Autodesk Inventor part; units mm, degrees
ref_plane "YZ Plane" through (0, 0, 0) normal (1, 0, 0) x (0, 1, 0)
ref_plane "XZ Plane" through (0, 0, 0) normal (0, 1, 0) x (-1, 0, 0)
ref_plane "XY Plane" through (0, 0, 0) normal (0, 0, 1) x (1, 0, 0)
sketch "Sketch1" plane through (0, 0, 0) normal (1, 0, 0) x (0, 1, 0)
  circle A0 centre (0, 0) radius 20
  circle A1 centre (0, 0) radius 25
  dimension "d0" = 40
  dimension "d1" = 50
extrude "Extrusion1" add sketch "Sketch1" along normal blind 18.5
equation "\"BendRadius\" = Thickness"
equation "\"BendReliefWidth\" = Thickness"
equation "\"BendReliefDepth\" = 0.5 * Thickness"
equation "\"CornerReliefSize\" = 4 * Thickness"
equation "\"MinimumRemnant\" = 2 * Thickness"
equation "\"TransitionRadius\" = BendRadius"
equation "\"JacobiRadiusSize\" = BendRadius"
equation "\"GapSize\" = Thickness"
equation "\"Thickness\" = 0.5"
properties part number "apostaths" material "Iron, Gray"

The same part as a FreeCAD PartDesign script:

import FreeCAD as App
import Part
import Sketcher
from FreeCAD import Vector
Q = App.Units.Quantity

doc = App.newDocument("Part")
body = doc.addObject("PartDesign::Body", "Body")

sketch1 = body.newObject("Sketcher::SketchObject", "Sketch")
sketch1.AttachmentSupport = (doc.getObject("YZ_Plane"), [""])
sketch1.MapMode = "FlatFace"
sketch1.addGeometry(Part.Circle(Vector(0, 0, 0), Vector(0, 0, 1), 25), False)
sketch1.addGeometry(Part.Circle(Vector(0, 0, 0), Vector(0, 0, 1), 20), False)
sketch1.addConstraint(Sketcher.Constraint("Coincident", 0, 3, -1, 1))
sketch1.addConstraint(Sketcher.Constraint("Coincident", 1, 3, -1, 1))
sketch1.addConstraint(Sketcher.Constraint("Diameter", 0, Q("50 mm")))
sketch1.addConstraint(Sketcher.Constraint("Diameter", 1, Q("40 mm")))
pad1 = body.newObject("PartDesign::Pad", "Pad")
pad1.Profile = sketch1
pad1.Length = 18.5

doc.recompute()
